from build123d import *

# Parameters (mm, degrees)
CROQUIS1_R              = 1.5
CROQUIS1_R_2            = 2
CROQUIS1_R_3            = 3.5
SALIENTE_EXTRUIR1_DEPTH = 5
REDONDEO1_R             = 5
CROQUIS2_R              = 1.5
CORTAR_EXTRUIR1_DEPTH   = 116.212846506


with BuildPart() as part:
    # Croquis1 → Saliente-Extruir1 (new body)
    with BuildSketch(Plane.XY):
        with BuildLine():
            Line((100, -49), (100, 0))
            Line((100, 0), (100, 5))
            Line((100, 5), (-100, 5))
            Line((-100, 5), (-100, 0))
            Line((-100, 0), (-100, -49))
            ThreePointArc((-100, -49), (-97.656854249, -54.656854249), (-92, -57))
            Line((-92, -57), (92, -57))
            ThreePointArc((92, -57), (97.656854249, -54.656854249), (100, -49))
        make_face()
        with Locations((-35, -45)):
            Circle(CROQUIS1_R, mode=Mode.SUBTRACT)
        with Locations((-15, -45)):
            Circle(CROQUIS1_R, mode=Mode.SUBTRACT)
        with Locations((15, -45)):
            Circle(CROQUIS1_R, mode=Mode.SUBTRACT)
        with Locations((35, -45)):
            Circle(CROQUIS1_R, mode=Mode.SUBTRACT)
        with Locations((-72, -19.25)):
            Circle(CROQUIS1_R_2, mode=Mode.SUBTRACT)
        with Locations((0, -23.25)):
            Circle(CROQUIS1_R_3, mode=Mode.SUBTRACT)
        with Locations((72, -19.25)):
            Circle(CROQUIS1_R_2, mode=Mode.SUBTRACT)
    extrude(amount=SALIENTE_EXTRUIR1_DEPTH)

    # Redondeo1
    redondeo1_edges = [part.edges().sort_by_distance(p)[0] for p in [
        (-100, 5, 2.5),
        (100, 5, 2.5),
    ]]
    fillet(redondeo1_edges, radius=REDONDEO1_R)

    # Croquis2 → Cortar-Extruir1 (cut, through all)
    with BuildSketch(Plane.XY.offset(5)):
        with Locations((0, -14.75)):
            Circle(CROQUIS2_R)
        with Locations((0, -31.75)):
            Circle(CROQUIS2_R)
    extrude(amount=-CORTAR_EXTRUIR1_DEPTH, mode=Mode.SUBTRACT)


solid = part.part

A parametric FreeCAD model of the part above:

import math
import FreeCAD as App
import Part
import Sketcher


def edges_at(feature, points):
    """Names of the edges that pass closest to the given points."""
    edges = feature.Shape.Edges
    near = lambda p: min(range(len(edges)), key=lambda i: edges[i].distToShape(Part.Vertex(*p))[0])
    return sorted({f"Edge{near(p) + 1}" for p in points})

doc = App.newDocument("Part")
body = doc.addObject("PartDesign::Body", "Body")

# Sketch on XY plane
sketch1 = body.newObject("Sketcher::SketchObject", "Sketch")
sketch1.AttachmentSupport = (doc.getObject("XY_Plane"), [""])
sketch1.MapMode = "FlatFace"
sketch1.addGeometry([
    Part.LineSegment(App.Vector(100, -49, 0), App.Vector(100, 5, 0)),  # 0
    Part.LineSegment(App.Vector(100, 5, 0), App.Vector(-100, 5, 0)),  # 1
    Part.LineSegment(App.Vector(-100, 5, 0), App.Vector(-100, -49, 0)),  # 2
    Part.ArcOfCircle(Part.Circle(App.Vector(-92, -49, 0), App.Vector(0, 0, 1), 8), math.radians(-180), math.radians(-90)),  # 3
    Part.LineSegment(App.Vector(-92, -57, 0), App.Vector(92, -57, 0)),  # 4
    Part.ArcOfCircle(Part.Circle(App.Vector(92, -49, 0), App.Vector(0, 0, 1), 8), math.radians(-90), math.radians(0)),  # 5
    Part.Circle(App.Vector(-35, -45, 0), App.Vector(0, 0, 1), 1.5),  # 6
    Part.Circle(App.Vector(-15, -45, 0), App.Vector(0, 0, 1), 1.5),  # 7
    Part.Circle(App.Vector(15, -45, 0), App.Vector(0, 0, 1), 1.5),  # 8
    Part.Circle(App.Vector(35, -45, 0), App.Vector(0, 0, 1), 1.5),  # 9
    Part.Circle(App.Vector(-72, -19.2, 0), App.Vector(0, 0, 1), 2),  # 10
    Part.Circle(App.Vector(0, -23.2, 0), App.Vector(0, 0, 1), 3.5),  # 11
    Part.Circle(App.Vector(72, -19.2, 0), App.Vector(0, 0, 1), 2),  # 12
], False)
sketch1.addConstraint([
    Sketcher.Constraint("Coincident", 0, 2, 1, 1),
    Sketcher.Constraint("Coincident", 1, 2, 2, 1),
    Sketcher.Constraint("Tangent", 2, 2, 3, 1),
    Sketcher.Constraint("Tangent", 3, 2, 4, 1),
    Sketcher.Constraint("Tangent", 4, 2, 5, 1),
    Sketcher.Constraint("Tangent", 5, 2, 0, 1),
    Sketcher.Constraint("Vertical", 0),
    Sketcher.Constraint("Horizontal", 1),
    Sketcher.Constraint("Vertical", 2),
    Sketcher.Constraint("Horizontal", 4),
    Sketcher.Constraint("Equal", 3, 5),
    Sketcher.Constraint("Equal", 6, 7),
    Sketcher.Constraint("Equal", 7, 8),
    Sketcher.Constraint("Equal", 8, 9),
    Sketcher.Constraint("Equal", 10, 12),
    Sketcher.Constraint("Symmetric", 7, 3, 8, 3, -2),
    Sketcher.Constraint("Symmetric", 6, 3, 9, 3, -2),
    Sketcher.Constraint("Symmetric", 10, 3, 12, 3, -2),
    Sketcher.Constraint("PointOnObject", 11, 3, -2),
    Sketcher.Constraint("Horizontal", 6, 3, 7, 3),
    Sketcher.Constraint("Diameter", 6, 3.0),
    Sketcher.Constraint("Diameter", 10, 4.0),
    Sketcher.Constraint("Diameter", 11, 7.0),
    Sketcher.Constraint("Radius", 3, 8.0),
    Sketcher.Constraint("DistanceX", 1, 2, 1, 1, 200.0),
    Sketcher.Constraint("DistanceY", 0, 1, 0, 2, 54.0),
    Sketcher.Constraint("DistanceX", 3, 3, -1, 1, 92.0),
    Sketcher.Constraint("DistanceY", 3, 3, -1, 1, 49.0),
    Sketcher.Constraint("DistanceX", 6, 3, -1, 1, 35.0),
    Sketcher.Constraint("DistanceY", 6, 3, -1, 1, 45.0),
    Sketcher.Constraint("DistanceX", 7, 3, -1, 1, 15.0),
    Sketcher.Constraint("DistanceX", 10, 3, -1, 1, 72.0),
    Sketcher.Constraint("DistanceY", 11, 3, 10, 3, 4.0),
    Sketcher.Constraint("DistanceY", 10, 3, -1, 1, 19.25),
])
pad1 = body.newObject("PartDesign::Pad", "Pad")
pad1.Profile = sketch1
pad1.Length = 5
doc.recompute()

fillet = body.newObject("PartDesign::Fillet", "Fillet")
fillet.Base = (pad1, edges_at(pad1, [(-100, 5, 2.5), (100, 5, 2.5)]))
fillet.Radius = 5

# Sketch on XY plane
sketch2 = body.newObject("Sketcher::SketchObject", "Sketch001")
sketch2.AttachmentSupport = (doc.getObject("XY_Plane"), [""])
sketch2.MapMode = "FlatFace"
sketch2.AttachmentOffset = App.Placement(App.Vector(0, 0, 5), App.Rotation())
sketch2.addGeometry([
    Part.Circle(App.Vector(0, -14.8, 0), App.Vector(0, 0, 1), 1.5),
    Part.Circle(App.Vector(0, -31.8, 0), App.Vector(0, 0, 1), 1.5),
], False)
sketch2.addConstraint([
    Sketcher.Constraint("Equal", 0, 1),
    Sketcher.Constraint("PointOnObject", 0, 3, -2),
    Sketcher.Constraint("PointOnObject", 1, 3, -2),
    Sketcher.Constraint("Diameter", 0, 3.0),
    Sketcher.Constraint("DistanceY", 1, 3, 0, 3, 17.0),
    Sketcher.Constraint("DistanceY", 0, 3, -1, 1, 14.75),
])
pocket1 = body.newObject("PartDesign::Pocket", "Pocket")
pocket1.Profile = sketch2
pocket1.Type = "ThroughAll"

doc.recompute()
